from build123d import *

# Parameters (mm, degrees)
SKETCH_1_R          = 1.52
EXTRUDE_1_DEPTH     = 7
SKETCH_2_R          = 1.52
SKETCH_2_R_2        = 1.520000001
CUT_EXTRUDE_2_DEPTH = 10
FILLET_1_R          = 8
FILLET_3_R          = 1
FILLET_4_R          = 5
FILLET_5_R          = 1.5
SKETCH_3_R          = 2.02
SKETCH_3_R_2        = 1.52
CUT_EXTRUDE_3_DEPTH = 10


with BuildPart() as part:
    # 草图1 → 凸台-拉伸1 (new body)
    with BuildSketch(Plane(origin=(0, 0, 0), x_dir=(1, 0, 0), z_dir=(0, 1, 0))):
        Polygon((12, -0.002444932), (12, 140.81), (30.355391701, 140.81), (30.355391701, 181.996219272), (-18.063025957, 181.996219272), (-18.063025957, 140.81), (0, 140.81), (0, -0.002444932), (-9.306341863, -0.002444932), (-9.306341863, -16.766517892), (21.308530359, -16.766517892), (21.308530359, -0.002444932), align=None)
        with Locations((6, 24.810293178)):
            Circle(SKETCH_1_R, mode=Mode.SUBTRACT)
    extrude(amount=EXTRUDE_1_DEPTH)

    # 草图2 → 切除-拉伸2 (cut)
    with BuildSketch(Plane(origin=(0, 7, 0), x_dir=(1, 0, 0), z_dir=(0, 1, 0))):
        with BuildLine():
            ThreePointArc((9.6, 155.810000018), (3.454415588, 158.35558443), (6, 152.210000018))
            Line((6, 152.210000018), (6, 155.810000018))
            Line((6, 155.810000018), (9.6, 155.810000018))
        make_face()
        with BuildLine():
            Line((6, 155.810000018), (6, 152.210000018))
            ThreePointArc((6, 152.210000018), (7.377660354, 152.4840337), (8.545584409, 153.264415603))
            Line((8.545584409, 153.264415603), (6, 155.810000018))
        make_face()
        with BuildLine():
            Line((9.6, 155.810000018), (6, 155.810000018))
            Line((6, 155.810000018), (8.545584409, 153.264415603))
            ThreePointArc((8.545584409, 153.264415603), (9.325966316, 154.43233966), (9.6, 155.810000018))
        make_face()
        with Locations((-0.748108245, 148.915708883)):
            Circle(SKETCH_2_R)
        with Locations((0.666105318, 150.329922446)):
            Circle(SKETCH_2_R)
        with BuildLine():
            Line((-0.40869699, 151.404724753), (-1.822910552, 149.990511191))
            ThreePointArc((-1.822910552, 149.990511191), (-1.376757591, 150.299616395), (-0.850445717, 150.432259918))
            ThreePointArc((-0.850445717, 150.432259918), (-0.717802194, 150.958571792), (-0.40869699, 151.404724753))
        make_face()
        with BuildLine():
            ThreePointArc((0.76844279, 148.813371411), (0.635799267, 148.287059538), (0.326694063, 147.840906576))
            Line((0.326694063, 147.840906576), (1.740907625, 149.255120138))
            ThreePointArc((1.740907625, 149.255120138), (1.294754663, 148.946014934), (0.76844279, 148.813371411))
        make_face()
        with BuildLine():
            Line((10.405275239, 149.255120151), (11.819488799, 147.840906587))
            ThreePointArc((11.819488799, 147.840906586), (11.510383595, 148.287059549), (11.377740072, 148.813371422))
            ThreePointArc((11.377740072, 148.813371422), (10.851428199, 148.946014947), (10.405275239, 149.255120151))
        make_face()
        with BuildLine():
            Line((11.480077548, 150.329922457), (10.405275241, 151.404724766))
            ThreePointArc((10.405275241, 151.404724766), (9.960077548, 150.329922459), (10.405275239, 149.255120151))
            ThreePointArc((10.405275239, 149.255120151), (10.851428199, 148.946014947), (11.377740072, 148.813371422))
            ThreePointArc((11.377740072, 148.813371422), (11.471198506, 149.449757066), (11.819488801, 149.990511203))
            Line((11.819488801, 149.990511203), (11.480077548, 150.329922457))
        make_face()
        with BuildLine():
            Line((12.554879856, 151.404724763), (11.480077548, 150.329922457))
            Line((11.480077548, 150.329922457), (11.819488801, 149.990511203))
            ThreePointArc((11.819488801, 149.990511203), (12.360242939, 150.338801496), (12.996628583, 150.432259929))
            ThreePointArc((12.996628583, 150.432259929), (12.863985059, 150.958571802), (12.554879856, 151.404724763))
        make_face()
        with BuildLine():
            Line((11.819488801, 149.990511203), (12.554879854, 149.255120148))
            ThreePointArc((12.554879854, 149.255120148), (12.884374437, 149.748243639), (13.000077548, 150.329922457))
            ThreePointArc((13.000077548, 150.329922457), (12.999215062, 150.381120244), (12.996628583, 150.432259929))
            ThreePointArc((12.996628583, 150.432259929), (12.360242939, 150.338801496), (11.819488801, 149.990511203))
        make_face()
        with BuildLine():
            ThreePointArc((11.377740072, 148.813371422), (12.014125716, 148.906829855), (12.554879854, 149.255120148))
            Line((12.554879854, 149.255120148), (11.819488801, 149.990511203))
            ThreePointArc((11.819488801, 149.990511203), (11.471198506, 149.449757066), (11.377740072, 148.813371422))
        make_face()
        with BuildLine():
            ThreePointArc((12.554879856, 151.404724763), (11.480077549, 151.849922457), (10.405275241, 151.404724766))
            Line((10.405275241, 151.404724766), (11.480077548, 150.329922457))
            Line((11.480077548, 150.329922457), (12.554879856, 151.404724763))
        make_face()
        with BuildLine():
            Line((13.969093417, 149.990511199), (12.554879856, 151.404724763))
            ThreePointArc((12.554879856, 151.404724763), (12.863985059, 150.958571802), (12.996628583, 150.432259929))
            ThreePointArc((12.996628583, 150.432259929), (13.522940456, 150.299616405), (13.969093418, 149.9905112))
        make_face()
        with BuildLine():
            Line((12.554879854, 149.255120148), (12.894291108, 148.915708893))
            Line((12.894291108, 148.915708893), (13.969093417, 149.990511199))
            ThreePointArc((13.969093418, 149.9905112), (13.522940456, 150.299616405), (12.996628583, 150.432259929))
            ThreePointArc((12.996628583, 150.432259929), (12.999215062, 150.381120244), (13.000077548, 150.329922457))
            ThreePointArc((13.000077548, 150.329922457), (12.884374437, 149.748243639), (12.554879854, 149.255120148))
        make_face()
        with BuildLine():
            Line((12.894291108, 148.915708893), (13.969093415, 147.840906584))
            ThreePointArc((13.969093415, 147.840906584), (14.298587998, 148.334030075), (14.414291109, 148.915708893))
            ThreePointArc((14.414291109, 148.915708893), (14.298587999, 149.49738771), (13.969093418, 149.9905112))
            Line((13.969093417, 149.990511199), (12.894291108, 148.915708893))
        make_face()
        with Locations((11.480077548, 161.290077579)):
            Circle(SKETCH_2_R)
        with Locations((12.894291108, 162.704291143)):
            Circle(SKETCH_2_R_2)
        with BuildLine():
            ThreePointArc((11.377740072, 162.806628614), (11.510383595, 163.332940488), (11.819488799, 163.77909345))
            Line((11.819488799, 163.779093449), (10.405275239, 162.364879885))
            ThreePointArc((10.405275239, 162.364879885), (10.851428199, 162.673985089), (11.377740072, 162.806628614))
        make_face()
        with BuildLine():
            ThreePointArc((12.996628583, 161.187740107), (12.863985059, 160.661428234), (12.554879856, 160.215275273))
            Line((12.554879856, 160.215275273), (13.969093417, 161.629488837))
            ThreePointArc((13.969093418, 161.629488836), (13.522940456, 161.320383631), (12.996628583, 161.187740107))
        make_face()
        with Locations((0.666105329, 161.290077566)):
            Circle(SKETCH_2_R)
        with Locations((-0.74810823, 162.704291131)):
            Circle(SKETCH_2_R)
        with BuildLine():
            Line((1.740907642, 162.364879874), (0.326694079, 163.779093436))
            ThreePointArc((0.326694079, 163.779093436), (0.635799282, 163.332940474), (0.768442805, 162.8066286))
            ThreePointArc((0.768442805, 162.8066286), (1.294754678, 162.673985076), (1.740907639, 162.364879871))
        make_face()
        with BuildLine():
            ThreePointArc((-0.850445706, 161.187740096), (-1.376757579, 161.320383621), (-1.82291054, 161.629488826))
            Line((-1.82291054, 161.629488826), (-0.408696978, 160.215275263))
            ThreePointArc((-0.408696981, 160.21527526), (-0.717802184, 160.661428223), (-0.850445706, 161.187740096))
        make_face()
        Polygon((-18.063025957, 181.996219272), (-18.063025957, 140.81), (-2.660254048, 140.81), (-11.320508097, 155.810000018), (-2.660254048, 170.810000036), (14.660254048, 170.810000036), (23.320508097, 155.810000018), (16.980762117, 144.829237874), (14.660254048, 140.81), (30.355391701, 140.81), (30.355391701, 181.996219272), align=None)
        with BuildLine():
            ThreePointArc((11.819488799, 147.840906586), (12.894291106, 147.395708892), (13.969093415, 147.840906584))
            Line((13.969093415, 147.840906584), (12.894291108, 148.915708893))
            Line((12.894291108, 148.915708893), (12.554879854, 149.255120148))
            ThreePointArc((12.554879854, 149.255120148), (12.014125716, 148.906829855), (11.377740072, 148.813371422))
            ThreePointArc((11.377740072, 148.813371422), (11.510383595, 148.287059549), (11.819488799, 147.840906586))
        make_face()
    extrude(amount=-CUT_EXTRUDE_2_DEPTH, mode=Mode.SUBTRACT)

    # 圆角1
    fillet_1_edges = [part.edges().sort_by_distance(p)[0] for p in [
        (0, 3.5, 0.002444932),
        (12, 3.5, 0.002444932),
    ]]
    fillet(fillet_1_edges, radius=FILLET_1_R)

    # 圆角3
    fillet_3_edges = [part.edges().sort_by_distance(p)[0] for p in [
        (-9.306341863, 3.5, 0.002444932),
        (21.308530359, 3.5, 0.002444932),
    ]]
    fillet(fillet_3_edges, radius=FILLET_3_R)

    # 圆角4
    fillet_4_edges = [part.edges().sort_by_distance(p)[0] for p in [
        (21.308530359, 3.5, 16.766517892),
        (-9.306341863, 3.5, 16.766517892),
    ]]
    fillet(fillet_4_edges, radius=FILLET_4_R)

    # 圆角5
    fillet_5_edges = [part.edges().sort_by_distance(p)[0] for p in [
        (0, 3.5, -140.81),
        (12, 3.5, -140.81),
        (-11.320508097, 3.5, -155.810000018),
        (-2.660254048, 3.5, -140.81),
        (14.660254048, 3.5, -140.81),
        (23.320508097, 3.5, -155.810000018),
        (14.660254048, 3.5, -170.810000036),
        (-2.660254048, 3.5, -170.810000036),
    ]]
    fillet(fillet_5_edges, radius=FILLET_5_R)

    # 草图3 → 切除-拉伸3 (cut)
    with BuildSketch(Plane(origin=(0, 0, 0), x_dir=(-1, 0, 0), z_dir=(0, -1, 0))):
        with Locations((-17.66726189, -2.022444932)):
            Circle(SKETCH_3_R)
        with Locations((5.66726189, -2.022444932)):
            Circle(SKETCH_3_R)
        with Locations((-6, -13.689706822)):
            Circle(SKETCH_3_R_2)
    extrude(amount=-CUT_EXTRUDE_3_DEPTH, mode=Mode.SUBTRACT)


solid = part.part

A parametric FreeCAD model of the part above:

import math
import FreeCAD as App
import Part
import Sketcher
from FreeCAD import Vector
Q = App.Units.Quantity


def edges_at(feature, points):
    """Names of the edges that pass closest to the given points."""
    edges = feature.Shape.Edges
    near = lambda p: min(range(len(edges)), key=lambda i: edges[i].distToShape(Part.Vertex(*p))[0])
    return sorted({f"Edge{near(p) + 1}" for p in points})


def add_polygon(sketch, points):
    """Adds a closed chain of lines whose ends are joined by coincident constraints."""
    first, n = sketch.GeometryCount, len(points)
    for a, b in zip(points, points[1:] + points[:1]):
        sketch.addGeometry(Part.LineSegment(App.Vector(*a, 0), App.Vector(*b, 0)), False)
    for i in range(n):
        sketch.addConstraint(Sketcher.Constraint("Coincident", first + i, 2, first + (i + 1) % n, 1))

doc = App.newDocument("Part")
body = doc.addObject("PartDesign::Body", "Body")

sketch1 = doc.addObject("Sketcher::SketchObject", "Sketch")
body.addObject(sketch1)
sketch1.AttachmentSupport = (doc.XZ_Plane, [""])
sketch1.MapMode = "FlatFace"
add_polygon(sketch1, [(12, 0), (12, -140.8), (30.4, -140.8), (30.4, -182), (-18.1, -182), (-18.1, -140.8), (0, -140.8), (0, 0), (-9.3, 0), (-9.3, 16.8), (21.3, 16.8), (21.3, 0)])
sketch1.addGeometry(Part.Circle(Vector(6, -24.8, 0), Vector(0, 0, 1), 1.5), False)
sketch1.addConstraint(Sketcher.Constraint("Vertical", 0))
sketch1.addConstraint(Sketcher.Constraint("Horizontal", 1))
sketch1.addConstraint(Sketcher.Constraint("Vertical", 2))
sketch1.addConstraint(Sketcher.Constraint("Horizontal", 3))
sketch1.addConstraint(Sketcher.Constraint("Vertical", 4))
sketch1.addConstraint(Sketcher.Constraint("Horizontal", 5))
sketch1.addConstraint(Sketcher.Constraint("Vertical", 6))
sketch1.addConstraint(Sketcher.Constraint("Horizontal", 7))
sketch1.addConstraint(Sketcher.Constraint("Vertical", 8))
sketch1.addConstraint(Sketcher.Constraint("Horizontal", 9))
sketch1.addConstraint(Sketcher.Constraint("Vertical", 10))
sketch1.addConstraint(Sketcher.Constraint("Horizontal", 11))
sketch1.addConstraint(Sketcher.Constraint("PointOnObject", 5, 2, -2))
sketch1.addConstraint(Sketcher.Constraint("Horizontal", 1, 2, 4, 2))
sketch1.addConstraint(Sketcher.Constraint("Horizontal", 7, 2, 10, 2))
sketch1.addConstraint(Sketcher.Constraint("Diameter", 12, 3.04))
sketch1.addConstraint(Sketcher.Constraint("DistanceX", -1, 1, 12, 3, 6.0))
sketch1.addConstraint(Sketcher.Constraint("DistanceX", -1, 1, 0, 2, 12.0))
sketch1.addConstraint(Sketcher.Constraint("DistanceY", 0, 2, -1, 1, 140.81))
sketch1.addConstraint(Sketcher.Constraint("DistanceX", 1, 1, 1, 2, 18.355392))
sketch1.addConstraint(Sketcher.Constraint("DistanceX", 7, 2, 7, 1, 9.306342))
sketch1.addConstraint(Sketcher.Constraint("DistanceX", 11, 2, 11, 1, 9.30853))
sketch1.addConstraint(Sketcher.Constraint("DistanceY", 2, 2, 2, 1, 41.186219))
sketch1.addConstraint(Sketcher.Constraint("DistanceX", 3, 2, 3, 1, 48.418418))
sketch1.addConstraint(Sketcher.Constraint("DistanceY", 0, 2, 0, 1, 140.812445))
sketch1.addConstraint(Sketcher.Constraint("DistanceY", 8, 1, 8, 2, 16.764073))
sketch1.addConstraint(Sketcher.Constraint("DistanceY", 12, 3, 6, 2, 24.812738))
pad1 = doc.addObject("PartDesign::Pad", "Pad")
body.addObject(pad1)
pad1.Profile = sketch1
pad1.Length = 7
pad1.Reversed = True

sketch2 = doc.addObject("Sketcher::SketchObject", "Sketch001")
body.addObject(sketch2)
sketch2.AttachmentSupport = (doc.XZ_Plane, [""])
sketch2.MapMode = "FlatFace"
sketch2.AttachmentOffset = App.Placement(Vector(0, 0, -7), App.Rotation())
sketch2.addGeometry(Part.ArcOfCircle(Part.Circle(Vector(6, -155.8, 0), Vector(0, 0, 1), 3.6), math.radians(90), math.radians(360)), False)
sketch2.addGeometry(Part.ArcOfCircle(Part.Circle(Vector(6, -155.8, 0), Vector(0, 0, 1), 3.6), math.radians(45), math.radians(90)), False)
sketch2.addGeometry(Part.ArcOfCircle(Part.Circle(Vector(6, -155.8, 0), Vector(0, 0, 1), 3.6), math.radians(0), math.radians(45)), False)
sketch2.addGeometry(Part.ArcOfCircle(Part.Circle(Vector(-0.7, -148.9, 0), Vector(0, 0, 1), 1.5), math.radians(45), math.radians(225)), False)
sketch2.addGeometry(Part.LineSegment(Vector(0.3, -147.8, 0), Vector(1.7, -149.3, 0)), False)
sketch2.addGeometry(Part.ArcOfCircle(Part.Circle(Vector(0.7, -150.3, 0), Vector(0, 0, 1), 1.5), math.radians(-135), math.radians(45)), False)
sketch2.addGeometry(Part.LineSegment(Vector(-0.4, -151.4, 0), Vector(-1.8, -150, 0)), False)
sketch2.addGeometry(Part.LineSegment(Vector(10.4, -149.3, 0), Vector(11.8, -147.8, 0)), False)
sketch2.addGeometry(Part.ArcOfCircle(Part.Circle(Vector(12.9, -148.9, 0), Vector(0, 0, 1), 1.5), math.radians(45), math.radians(135)), False)
sketch2.addGeometry(Part.ArcOfCircle(Part.Circle(Vector(12.9, -148.9, 0), Vector(0, 0, 1), 1.5), math.radians(0), math.radians(45)), False)
sketch2.addGeometry(Part.ArcOfCircle(Part.Circle(Vector(12.9, -148.9, 0), Vector(0, 0, 1), 1.5), math.radians(-45), math.radians(0)), False)
sketch2.addGeometry(Part.LineSegment(Vector(14, -150, 0), Vector(12.6, -151.4, 0)), False)
sketch2.addGeometry(Part.ArcOfCircle(Part.Circle(Vector(11.5, -150.3, 0), Vector(0, 0, 1), 1.5), math.radians(-135), math.radians(-45)), False)
sketch2.addGeometry(Part.ArcOfCircle(Part.Circle(Vector(11.5, -150.3, 0), Vector(0, 0, 1), 1.5), math.radians(135), math.radians(225)), False)
sketch2.addGeometry(Part.ArcOfCircle(Part.Circle(Vector(11.5, -161.3, 0), Vector(0, 0, 1), 1.5), math.radians(45), math.radians(225)), False)
sketch2.addGeometry(Part.LineSegment(Vector(12.6, -160.2, 0), Vector(14, -161.6, 0)), False)
sketch2.addGeometry(Part.ArcOfCircle(Part.Circle(Vector(12.9, -162.7, 0), Vector(0, 0, 1), 1.5), math.radians(-135), math.radians(45)), False)
sketch2.addGeometry(Part.LineSegment(Vector(11.8, -163.8, 0), Vector(10.4, -162.4, 0)), False)
sketch2.addGeometry(Part.ArcOfCircle(Part.Circle(Vector(0.7, -161.3, 0), Vector(0, 0, 1), 1.5), math.radians(-45), math.radians(135)), False)
sketch2.addGeometry(Part.LineSegment(Vector(1.7, -162.4, 0), Vector(0.3, -163.8, 0)), False)
sketch2.addGeometry(Part.ArcOfCircle(Part.Circle(Vector(-0.7, -162.7, 0), Vector(0, 0, 1), 1.5), math.radians(135), math.radians(315)), False)
sketch2.addGeometry(Part.LineSegment(Vector(-1.8, -161.6, 0), Vector(-0.4, -160.2, 0)), False)
add_polygon(sketch2, [(-18.1, -182), (-18.1, -140.8), (-2.7, -140.8), (-11.3, -155.8), (-2.7, -170.8), (14.7, -170.8), (23.3, -155.8), (17, -144.8), (14.7, -140.8), (30.4, -140.8), (30.4, -182)])
sketch2.addConstraint(Sketcher.Constraint("Tangent", 0, 1, 1, 2))
sketch2.addConstraint(Sketcher.Constraint("Tangent", 1, 1, 2, 2))
sketch2.addConstraint(Sketcher.Constraint("Tangent", 2, 1, 0, 2))
sketch2.addConstraint(Sketcher.Constraint("Tangent", 3, 1, 4, 1))
sketch2.addConstraint(Sketcher.Constraint("Tangent", 4, 2, 5, 2))
sketch2.addConstraint(Sketcher.Constraint("Tangent", 5, 1, 6, 1))
sketch2.addConstraint(Sketcher.Constraint("Tangent", 6, 2, 3, 2))
sketch2.addConstraint(Sketcher.Constraint("Tangent", 7, 2, 8, 2))
sketch2.addConstraint(Sketcher.Constraint("Tangent", 8, 1, 9, 2))
sketch2.addConstraint(Sketcher.Constraint("Tangent", 9, 1, 10, 2))
sketch2.addConstraint(Sketcher.Constraint("Tangent", 10, 1, 11, 1))
sketch2.addConstraint(Sketcher.Constraint("Tangent", 11, 2, 12, 2))
sketch2.addConstraint(Sketcher.Constraint("Tangent", 12, 1, 13, 2))
sketch2.addConstraint(Sketcher.Constraint("Tangent", 13, 1, 7, 1))
sketch2.addConstraint(Sketcher.Constraint("Tangent", 14, 1, 15, 1))
sketch2.addConstraint(Sketcher.Constraint("Tangent", 15, 2, 16, 2))
sketch2.addConstraint(Sketcher.Constraint("Tangent", 16, 1, 17, 1))
sketch2.addConstraint(Sketcher.Constraint("Tangent", 17, 2, 14, 2))
sketch2.addConstraint(Sketcher.Constraint("Tangent", 18, 1, 19, 1))
sketch2.addConstraint(Sketcher.Constraint("Tangent", 19, 2, 20, 2))
sketch2.addConstraint(Sketcher.Constraint("Tangent", 20, 1, 21, 1))
sketch2.addConstraint(Sketcher.Constraint("Tangent", 21, 2, 18, 2))
sketch2.addConstraint(Sketcher.Constraint("Vertical", 22))
sketch2.addConstraint(Sketcher.Constraint("Horizontal", 23))
sketch2.addConstraint(Sketcher.Constraint("Horizontal", 26))
sketch2.addConstraint(Sketcher.Constraint("Horizontal", 30))
sketch2.addConstraint(Sketcher.Constraint("Vertical", 31))
sketch2.addConstraint(Sketcher.Constraint("Horizontal", 32))
sketch2.addConstraint(Sketcher.Constraint("Coincident", 10, 3, 8, 3))
sketch2.addConstraint(Sketcher.Constraint("Equal", 3, 5))
sketch2.addConstraint(Sketcher.Constraint("Equal", 5, 8))
sketch2.addConstraint(Sketcher.Constraint("Equal", 10, 12))
sketch2.addConstraint(Sketcher.Constraint("Equal", 12, 13))
sketch2.addConstraint(Sketcher.Constraint("Equal", 13, 14))
sketch2.addConstraint(Sketcher.Constraint("Equal", 14, 16))
sketch2.addConstraint(Sketcher.Constraint("Equal", 16, 18))
sketch2.addConstraint(Sketcher.Constraint("Equal", 18, 20))
sketch2.addConstraint(Sketcher.Constraint("Perpendicular", 6, 7))
sketch2.addConstraint(Sketcher.Constraint("Perpendicular", 11, 15))
sketch2.addConstraint(Sketcher.Constraint("Perpendicular", 17, 19))
sketch2.addConstraint(Sketcher.Constraint("Parallel", 24, 27))
sketch2.addConstraint(Sketcher.Constraint("Parallel", 25, 28))
sketch2.addConstraint(Sketcher.Constraint("Parallel", 28, 29))
sketch2.addConstraint(Sketcher.Constraint("Horizontal", 3, 3, 8, 3))
sketch2.addConstraint(Sketcher.Constraint("Horizontal", 5, 3, 12, 3))
sketch2.addConstraint(Sketcher.Constraint("Horizontal", 14, 3, 18, 3))
sketch2.addConstraint(Sketcher.Constraint("Horizontal", 16, 3, 20, 3))
sketch2.addConstraint(Sketcher.Constraint("Horizontal", 1, 3, 2, 1))
sketch2.addConstraint(Sketcher.Constraint("Horizontal", 3, 1, 7, 2))
sketch2.addConstraint(Sketcher.Constraint("Horizontal", 7, 2, 8, 1))
sketch2.addConstraint(Sketcher.Constraint("Horizontal", 10, 3, 9, 1))
sketch2.addConstraint(Sketcher.Constraint("Horizontal", 11, 2, 12, 1))
sketch2.addConstraint(Sketcher.Constraint("Horizontal", 2, 1, 24, 2))
sketch2.addConstraint(Sketcher.Constraint("Horizontal", 24, 2, 27, 2))
sketch2.addConstraint(Sketcher.Constraint("Horizontal", 23, 2, 29, 2))
sketch2.addConstraint(Sketcher.Constraint("Vertical", 13, 3, 14, 3))
sketch2.addConstraint(Sketcher.Constraint("Vertical", 10, 3, 16, 3))
sketch2.addConstraint(Sketcher.Constraint("Vertical", 5, 3, 18, 3))
sketch2.addConstraint(Sketcher.Constraint("Vertical", 2, 3, 0, 1))
sketch2.addConstraint(Sketcher.Constraint("Vertical", 23, 2, 25, 2))
sketch2.addConstraint(Sketcher.Constraint("Vertical", 26, 2, 29, 2))
sketch2.addConstraint(Sketcher.Constraint("Radius", 0, 3.6))
sketch2.addConstraint(Sketcher.Constraint("Angle", 24, Q("-120 deg")))
sketch2.addConstraint(Sketcher.Constraint("Radius", 3, 1.52))
sketch2.addConstraint(Sketcher.Constraint("Distance", 4, 2.0))
sketch2.addConstraint(Sketcher.Constraint("DistanceX", -1, 1, 0, 3, 6.0))
sketch2.addConstraint(Sketcher.Constraint("DistanceY", 27, 2, 30, 2, 15.0))
sketch2.addConstraint(Sketcher.Constraint("DistanceY", 0, 3, -1, 1, 155.81))
sketch2.addConstraint(Sketcher.Constraint("DistanceX", 23, 1, 23, 2, 15.402772))
sketch2.addConstraint(Sketcher.Constraint("DistanceX", 26, 1, 26, 2, 17.320508))
sketch2.addConstraint(Sketcher.Constraint("DistanceY", 22, 1, 22, 2, 41.186219))
sketch2.addConstraint(Sketcher.Constraint("DistanceX", 3, 3, 8, 3, 13.642399))
sketch2.addConstraint(Sketcher.Constraint("DistanceX", 24, 2, 3, 3, 10.5724))
sketch2.addConstraint(Sketcher.Constraint("DistanceX", 8, 1, 30, 2, 16.386298))
sketch2.addConstraint(Sketcher.Constraint("Distance", 28, 12.679492))
sketch2.addConstraint(Sketcher.Constraint("DistanceX", 3, 3, -1, 1, 0.748108))
sketch2.addConstraint(Sketcher.Constraint("DistanceY", 3, 3, -1, 1, 148.915709))
sketch2.addConstraint(Sketcher.Constraint("DistanceY", 16, 3, -1, 1, 162.704291))
sketch2.addConstraint(Sketcher.Constraint("DistanceX", 1, 1, 12, 1, 1.859691))
pocket1 = doc.addObject("PartDesign::Pocket", "Pocket")
body.addObject(pocket1)
pocket1.Profile = sketch2
pocket1.Length = 10
pocket1.Reversed = True
doc.recompute()

fillet = doc.addObject("PartDesign::Fillet", "Fillet")
body.addObject(fillet)
fillet.Base = (pocket1, edges_at(pocket1, [(0, 3.5, 0.002), (12, 3.5, 0.002)]))
fillet.Radius = 8
doc.recompute()

fillet2 = doc.addObject("PartDesign::Fillet", "Fillet001")
body.addObject(fillet2)
fillet2.Base = (fillet, edges_at(fillet, [(-9.306, 3.5, 0.002), (21.309, 3.5, 0.002)]))
fillet2.Radius = 1
doc.recompute()

fillet3 = doc.addObject("PartDesign::Fillet", "Fillet002")
body.addObject(fillet3)
fillet3.Base = (fillet2, edges_at(fillet2, [(21.309, 3.5, 16.767), (-9.306, 3.5, 16.767)]))
fillet3.Radius = 5
doc.recompute()

fillet4 = doc.addObject("PartDesign::Fillet", "Fillet003")
body.addObject(fillet4)
fillet4.Base = (fillet3, edges_at(fillet3, [
    (0, 3.5, -140.81),
    (12, 3.5, -140.81),
    (-11.321, 3.5, -155.81),
    (-2.66, 3.5, -140.81),
    (14.66, 3.5, -140.81),
    (23.321, 3.5, -155.81),
    (14.66, 3.5, -170.81),
    (-2.66, 3.5, -170.81),
]))
fillet4.Radius = 1.5

sketch3 = doc.addObject("Sketcher::SketchObject", "Sketch002")
body.addObject(sketch3)
sketch3.AttachmentSupport = (doc.XZ_Plane, [""])
sketch3.MapMode = "FlatFace"
sketch3.addGeometry(Part.Circle(Vector(17.7, 2, 0), Vector(0, 0, 1), 2), False)
sketch3.addGeometry(Part.Circle(Vector(-5.7, 2, 0), Vector(0, 0, 1), 2), False)
sketch3.addGeometry(Part.Circle(Vector(6, 13.7, 0), Vector(0, 0, 1), 1.5), False)
sketch3.addConstraint(Sketcher.Constraint("Equal", 0, 1))
sketch3.addConstraint(Sketcher.Constraint("Horizontal", 0, 3, 1, 3))
sketch3.addConstraint(Sketcher.Constraint("Diameter", 0, 4.04))
sketch3.addConstraint(Sketcher.Constraint("Diameter", 2, 3.04))
sketch3.addConstraint(Sketcher.Constraint("DistanceX", -1, 1, 2, 3, 6.0))
sketch3.addConstraint(Sketcher.Constraint("DistanceX", -1, 1, 0, 3, 17.667262))
sketch3.addConstraint(Sketcher.Constraint("DistanceX", 1, 3, -1, 1, 5.667262))
sketch3.addConstraint(Sketcher.Constraint("DistanceY", 0, 3, 2, 3, 11.667262))
sketch3.addConstraint(Sketcher.Constraint("DistanceY", -1, 1, 0, 3, 2.022445))
pocket2 = doc.addObject("PartDesign::Pocket", "Pocket001")
body.addObject(pocket2)
pocket2.Profile = sketch3
pocket2.Length = 10

doc.recompute()
